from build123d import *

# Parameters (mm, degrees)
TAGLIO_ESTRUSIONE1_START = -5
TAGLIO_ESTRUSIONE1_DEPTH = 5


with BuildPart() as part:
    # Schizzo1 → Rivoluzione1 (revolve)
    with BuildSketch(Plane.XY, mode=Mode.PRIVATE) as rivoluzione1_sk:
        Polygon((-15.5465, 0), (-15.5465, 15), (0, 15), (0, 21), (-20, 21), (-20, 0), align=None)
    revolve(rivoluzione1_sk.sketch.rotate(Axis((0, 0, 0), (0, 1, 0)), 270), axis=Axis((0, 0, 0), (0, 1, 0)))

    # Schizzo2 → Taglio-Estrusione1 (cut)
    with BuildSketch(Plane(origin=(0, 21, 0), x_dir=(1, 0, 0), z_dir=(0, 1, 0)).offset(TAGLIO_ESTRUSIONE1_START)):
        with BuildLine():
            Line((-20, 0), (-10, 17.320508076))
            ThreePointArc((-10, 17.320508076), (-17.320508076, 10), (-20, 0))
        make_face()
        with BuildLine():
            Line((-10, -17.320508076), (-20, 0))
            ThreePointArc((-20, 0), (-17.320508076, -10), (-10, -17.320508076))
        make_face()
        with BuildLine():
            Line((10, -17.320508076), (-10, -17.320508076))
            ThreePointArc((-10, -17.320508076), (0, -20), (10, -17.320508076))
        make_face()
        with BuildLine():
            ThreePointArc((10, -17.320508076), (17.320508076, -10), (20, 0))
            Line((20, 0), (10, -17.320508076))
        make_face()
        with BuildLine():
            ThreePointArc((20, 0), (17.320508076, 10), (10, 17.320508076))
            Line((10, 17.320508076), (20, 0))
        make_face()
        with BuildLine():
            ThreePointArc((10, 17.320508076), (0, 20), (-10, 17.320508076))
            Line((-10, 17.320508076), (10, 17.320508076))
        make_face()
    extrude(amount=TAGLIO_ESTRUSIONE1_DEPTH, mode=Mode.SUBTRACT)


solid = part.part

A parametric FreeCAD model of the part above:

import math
import FreeCAD as App
import Part
import Sketcher
from FreeCAD import Vector
Q = App.Units.Quantity


def add_polygon(sketch, points):
    """Adds a closed chain of lines whose ends are joined by coincident constraints."""
    first, n = sketch.GeometryCount, len(points)
    for a, b in zip(points, points[1:] + points[:1]):
        sketch.addGeometry(Part.LineSegment(App.Vector(*a, 0), App.Vector(*b, 0)), False)
    for i in range(n):
        sketch.addConstraint(Sketcher.Constraint("Coincident", first + i, 2, first + (i + 1) % n, 1))

doc = App.newDocument("Part")
body = doc.addObject("PartDesign::Body", "Body")

# Sketch on XY plane
sketch1 = doc.addObject("Sketcher::SketchObject", "Sketch")
body.addObject(sketch1)
sketch1.AttachmentSupport = (doc.XY_Plane, [""])
sketch1.MapMode = "FlatFace"
add_polygon(sketch1, [(-15.5, 0), (-15.5, 15), (0, 15), (0, 21), (-20, 21), (-20, 0)])  # lines 0-5
sketch1.addConstraint([
    Sketcher.Constraint("Vertical", 0),
    Sketcher.Constraint("Horizontal", 1),
    Sketcher.Constraint("Vertical", 2),
    Sketcher.Constraint("Horizontal", 3),
    Sketcher.Constraint("Vertical", 4),
    Sketcher.Constraint("Horizontal", 5),
    Sketcher.Constraint("PointOnObject", 1, 2, -2),
    Sketcher.Constraint("PointOnObject", 4, 2, -1),
    Sketcher.Constraint("DistanceX", 3, 2, 3, 1, Q("20 mm")),
    Sketcher.Constraint("DistanceY", 0, 1, 0, 2, Q("15 mm")),
    Sketcher.Constraint("DistanceY", 2, 1, 2, 2, Q("6 mm")),
    Sketcher.Constraint("DistanceX", 1, 1, 1, 2, Q("15.5465 mm")),
])
revolution = doc.addObject("PartDesign::Revolution", "Revolution")
body.addObject(revolution)
revolution.Profile = sketch1
revolution.ReferenceAxis = (sketch1, ["V_Axis"])
revolution.Angle = 360

# Sketch on XZ plane
sketch2 = doc.addObject("Sketcher::SketchObject", "Sketch001")
body.addObject(sketch2)
sketch2.AttachmentSupport = (doc.XZ_Plane, [""])
sketch2.MapMode = "FlatFace"
sketch2.AttachmentOffset = App.Placement(Vector(0, 0, -16), App.Rotation())
sketch2.addGeometry([
    Part.LineSegment(Vector(-20, 0, 0), Vector(-10, -17, 0)),  # 0
    Part.ArcOfCircle(Part.Circle(Vector(0, 0, 0), Vector(0, 0, 1), 20), math.radians(180), math.radians(240)),  # 1
    Part.LineSegment(Vector(-10, 17, 0), Vector(-20, 0, 0)),  # 2
    Part.ArcOfCircle(Part.Circle(Vector(0, 0, 0), Vector(0, 0, 1), 20), math.radians(120), math.radians(180)),  # 3
    Part.LineSegment(Vector(10, 17, 0), Vector(-10, 17, 0)),  # 4
    Part.ArcOfCircle(Part.Circle(Vector(0, 0, 0), Vector(0, 0, 1), 20), math.radians(60), math.radians(120)),  # 5
    Part.ArcOfCircle(Part.Circle(Vector(0, 0, 0), Vector(0, 0, 1), 20), math.radians(0), math.radians(60)),  # 6
    Part.LineSegment(Vector(20, 0, 0), Vector(10, 17, 0)),  # 7
    Part.ArcOfCircle(Part.Circle(Vector(0, 0, 0), Vector(0, 0, 1), 20), math.radians(-60), math.radians(0)),  # 8
    Part.LineSegment(Vector(10, -17, 0), Vector(20, 0, 0)),  # 9
    Part.ArcOfCircle(Part.Circle(Vector(0, 0, 0), Vector(0, 0, 1), 20), math.radians(-120), math.radians(-60)),  # 10
    Part.LineSegment(Vector(-10, -17, 0), Vector(10, -17, 0)),  # 11
], False)
sketch2.addConstraint([
    Sketcher.Constraint("Coincident", 0, 1, 1, 1),
    Sketcher.Constraint("Coincident", 1, 2, 0, 2),
    Sketcher.Constraint("Coincident", 2, 1, 3, 1),
    Sketcher.Constraint("Coincident", 3, 2, 2, 2),
    Sketcher.Constraint("Coincident", 4, 1, 5, 1),
    Sketcher.Constraint("Coincident", 5, 2, 4, 2),
    Sketcher.Constraint("Coincident", 6, 1, 7, 1),
    Sketcher.Constraint("Coincident", 7, 2, 6, 2),
    Sketcher.Constraint("Coincident", 8, 1, 9, 1),
    Sketcher.Constraint("Coincident", 9, 2, 8, 2),
    Sketcher.Constraint("Coincident", 10, 1, 11, 1),
    Sketcher.Constraint("Coincident", 11, 2, 10, 2),
    Sketcher.Constraint("Horizontal", 4),
    Sketcher.Constraint("Horizontal", 11),
    Sketcher.Constraint("Coincident", 1, 3, -1, 1),
    Sketcher.Constraint("Coincident", 3, 3, -1, 1),
    Sketcher.Constraint("Coincident", 5, 3, -1, 1),
    Sketcher.Constraint("Coincident", 6, 3, -1, 1),
    Sketcher.Constraint("Coincident", 8, 3, -1, 1),
    Sketcher.Constraint("Coincident", 10, 3, -1, 1),
    Sketcher.Constraint("Coincident", 3, 2, 0, 1),
    Sketcher.Constraint("Coincident", 5, 2, 2, 1),
    Sketcher.Constraint("Coincident", 7, 2, 4, 1),
    Sketcher.Constraint("Coincident", 9, 2, 6, 1),
    Sketcher.Constraint("Coincident", 10, 1, 1, 2),
    Sketcher.Constraint("PointOnObject", 0, 1, -1),
    Sketcher.Constraint("PointOnObject", 6, 1, -1),
    Sketcher.Constraint("Parallel", 0, 7),
    Sketcher.Constraint("Parallel", 2, 9),
    Sketcher.Constraint("Radius", 1, Q("20 mm")),
    Sketcher.Constraint("DistanceX", 4, 2, 4, 1, Q("20 mm")),
])
pocket1 = doc.addObject("PartDesign::Pocket", "Pocket")
body.addObject(pocket1)
pocket1.Profile = sketch2
pocket1.Length = 5

doc.recompute()
